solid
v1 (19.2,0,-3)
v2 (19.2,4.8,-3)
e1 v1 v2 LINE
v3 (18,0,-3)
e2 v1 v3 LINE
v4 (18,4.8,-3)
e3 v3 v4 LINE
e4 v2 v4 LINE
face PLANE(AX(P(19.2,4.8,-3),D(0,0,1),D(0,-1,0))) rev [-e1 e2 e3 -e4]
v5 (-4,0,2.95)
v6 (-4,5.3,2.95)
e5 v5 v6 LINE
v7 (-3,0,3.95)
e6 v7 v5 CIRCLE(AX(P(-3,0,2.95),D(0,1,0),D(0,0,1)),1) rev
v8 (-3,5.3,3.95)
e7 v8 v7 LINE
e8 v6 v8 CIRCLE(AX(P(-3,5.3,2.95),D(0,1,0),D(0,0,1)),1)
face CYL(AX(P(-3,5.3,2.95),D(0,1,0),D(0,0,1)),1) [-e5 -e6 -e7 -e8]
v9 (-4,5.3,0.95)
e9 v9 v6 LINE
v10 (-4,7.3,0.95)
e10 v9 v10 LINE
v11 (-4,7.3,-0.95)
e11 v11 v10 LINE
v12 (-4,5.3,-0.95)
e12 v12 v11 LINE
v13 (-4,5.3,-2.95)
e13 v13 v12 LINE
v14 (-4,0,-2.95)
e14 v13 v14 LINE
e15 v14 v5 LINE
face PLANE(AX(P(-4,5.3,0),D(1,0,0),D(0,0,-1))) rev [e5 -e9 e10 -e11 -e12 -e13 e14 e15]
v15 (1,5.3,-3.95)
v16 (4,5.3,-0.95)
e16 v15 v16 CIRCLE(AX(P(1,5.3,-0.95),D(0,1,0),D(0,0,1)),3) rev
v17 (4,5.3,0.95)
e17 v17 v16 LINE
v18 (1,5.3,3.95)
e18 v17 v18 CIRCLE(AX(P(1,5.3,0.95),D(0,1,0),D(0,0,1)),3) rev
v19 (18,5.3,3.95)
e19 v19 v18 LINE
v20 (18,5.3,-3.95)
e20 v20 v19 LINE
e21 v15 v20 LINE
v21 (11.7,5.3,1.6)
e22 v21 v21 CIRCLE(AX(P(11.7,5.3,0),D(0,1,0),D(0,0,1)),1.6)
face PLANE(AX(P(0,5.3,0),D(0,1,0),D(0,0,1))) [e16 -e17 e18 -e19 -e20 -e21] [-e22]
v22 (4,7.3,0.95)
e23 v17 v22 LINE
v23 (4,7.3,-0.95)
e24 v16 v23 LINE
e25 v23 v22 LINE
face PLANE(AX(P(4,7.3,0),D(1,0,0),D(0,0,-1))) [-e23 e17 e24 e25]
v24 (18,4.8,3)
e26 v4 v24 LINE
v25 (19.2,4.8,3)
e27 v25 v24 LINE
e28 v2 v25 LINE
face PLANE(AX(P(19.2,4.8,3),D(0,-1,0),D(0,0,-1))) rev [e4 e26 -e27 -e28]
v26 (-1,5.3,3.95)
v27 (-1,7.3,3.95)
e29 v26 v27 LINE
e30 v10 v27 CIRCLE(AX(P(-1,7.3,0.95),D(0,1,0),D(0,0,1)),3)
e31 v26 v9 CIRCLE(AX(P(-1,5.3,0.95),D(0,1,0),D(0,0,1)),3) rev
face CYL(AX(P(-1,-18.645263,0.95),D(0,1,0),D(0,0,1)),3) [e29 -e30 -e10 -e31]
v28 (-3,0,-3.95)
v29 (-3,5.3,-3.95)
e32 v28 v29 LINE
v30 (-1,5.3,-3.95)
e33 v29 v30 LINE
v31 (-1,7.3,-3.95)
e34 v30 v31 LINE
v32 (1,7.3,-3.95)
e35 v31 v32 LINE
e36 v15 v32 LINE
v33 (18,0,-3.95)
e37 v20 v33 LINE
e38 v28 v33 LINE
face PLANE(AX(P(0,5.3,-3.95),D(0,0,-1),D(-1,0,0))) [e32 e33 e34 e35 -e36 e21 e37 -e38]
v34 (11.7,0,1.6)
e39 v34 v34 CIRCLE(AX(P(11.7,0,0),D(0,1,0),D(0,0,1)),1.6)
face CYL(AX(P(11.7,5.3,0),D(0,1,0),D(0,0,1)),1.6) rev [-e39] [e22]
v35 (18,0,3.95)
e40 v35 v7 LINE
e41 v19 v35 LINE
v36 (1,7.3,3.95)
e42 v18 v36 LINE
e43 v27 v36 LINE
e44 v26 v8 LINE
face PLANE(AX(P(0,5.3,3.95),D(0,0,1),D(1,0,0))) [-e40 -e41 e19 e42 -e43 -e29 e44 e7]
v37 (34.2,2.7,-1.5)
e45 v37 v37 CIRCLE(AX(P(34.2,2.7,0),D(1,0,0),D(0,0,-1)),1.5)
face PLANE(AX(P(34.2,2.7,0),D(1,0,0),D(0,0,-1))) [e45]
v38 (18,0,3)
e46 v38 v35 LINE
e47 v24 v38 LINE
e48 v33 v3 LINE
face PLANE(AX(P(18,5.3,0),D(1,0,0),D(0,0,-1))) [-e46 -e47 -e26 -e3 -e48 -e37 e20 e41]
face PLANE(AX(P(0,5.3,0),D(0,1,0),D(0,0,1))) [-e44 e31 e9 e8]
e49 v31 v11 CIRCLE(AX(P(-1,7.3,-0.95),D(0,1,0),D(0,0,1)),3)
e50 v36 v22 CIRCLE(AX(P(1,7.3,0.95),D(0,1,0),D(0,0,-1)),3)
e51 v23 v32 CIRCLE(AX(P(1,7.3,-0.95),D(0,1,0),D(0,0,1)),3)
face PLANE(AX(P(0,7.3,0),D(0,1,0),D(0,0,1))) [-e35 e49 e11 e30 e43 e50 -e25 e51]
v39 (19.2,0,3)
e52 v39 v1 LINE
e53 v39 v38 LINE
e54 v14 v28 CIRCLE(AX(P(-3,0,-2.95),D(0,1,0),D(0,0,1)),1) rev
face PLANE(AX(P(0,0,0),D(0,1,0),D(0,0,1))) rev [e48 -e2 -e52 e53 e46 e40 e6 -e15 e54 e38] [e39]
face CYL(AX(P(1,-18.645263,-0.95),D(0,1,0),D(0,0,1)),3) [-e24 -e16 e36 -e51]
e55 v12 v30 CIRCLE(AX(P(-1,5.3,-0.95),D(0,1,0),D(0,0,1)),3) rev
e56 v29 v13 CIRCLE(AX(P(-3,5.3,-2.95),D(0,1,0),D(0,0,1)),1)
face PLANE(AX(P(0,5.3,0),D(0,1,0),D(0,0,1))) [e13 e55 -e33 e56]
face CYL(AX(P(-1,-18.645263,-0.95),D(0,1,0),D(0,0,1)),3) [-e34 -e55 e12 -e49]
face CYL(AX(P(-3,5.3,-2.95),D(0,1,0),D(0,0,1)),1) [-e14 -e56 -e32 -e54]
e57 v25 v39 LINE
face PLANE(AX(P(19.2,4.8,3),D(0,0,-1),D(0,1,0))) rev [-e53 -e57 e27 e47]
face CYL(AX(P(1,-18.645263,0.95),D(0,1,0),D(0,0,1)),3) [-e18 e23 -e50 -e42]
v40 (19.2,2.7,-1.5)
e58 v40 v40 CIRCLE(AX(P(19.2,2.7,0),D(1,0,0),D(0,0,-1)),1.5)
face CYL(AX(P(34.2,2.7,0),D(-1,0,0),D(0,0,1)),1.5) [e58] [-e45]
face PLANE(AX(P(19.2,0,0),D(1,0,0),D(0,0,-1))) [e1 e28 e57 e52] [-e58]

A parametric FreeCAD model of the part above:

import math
import FreeCAD as App
import Part
import Sketcher

V = App.Vector
Q = App.Units.Quantity


def edges_at(feature, points):
    """Names of the edges that pass closest to the given points."""
    edges = feature.Shape.Edges
    near = lambda p: min(range(len(edges)), key=lambda i: edges[i].distToShape(Part.Vertex(*p))[0])
    return sorted({f"Edge{near(p) + 1}" for p in points})

doc = App.newDocument("Part")
body = doc.addObject("PartDesign::Body", "Body")

# Sketch on XZ plane
sketch1 = doc.addObject("Sketcher::SketchObject", "Sketch")
body.addObject(sketch1)
sketch1.AttachmentSupport = (doc.XZ_Plane, [""])
sketch1.MapMode = "FlatFace"
sketch1.addGeometry([
    Part.LineSegment(V(18, 4, 0), V(18, -4, 0)),
    Part.LineSegment(V(18, -4, 0), V(-4, -4, 0)),
    Part.LineSegment(V(-4, -4, 0), V(-4, 4, 0)),
    Part.LineSegment(V(-4, 4, 0), V(18, 4, 0)),
], False)
sketch1.addConstraint([
    Sketcher.Constraint("Coincident", 0, 2, 1, 1),
    Sketcher.Constraint("Coincident", 1, 2, 2, 1),
    Sketcher.Constraint("Coincident", 2, 2, 3, 1),
    Sketcher.Constraint("Coincident", 3, 2, 0, 1),
    Sketcher.Constraint("Vertical", 0),
    Sketcher.Constraint("Horizontal", 1),
    Sketcher.Constraint("Vertical", 2),
    Sketcher.Constraint("Horizontal", 3),
    Sketcher.Constraint("DistanceX", 1, 2, 1, 1, Q("22 mm")),
    Sketcher.Constraint("DistanceY", 0, 2, 0, 1, Q("7.9 mm")),
    Sketcher.Constraint("DistanceX", -1, 1, 0, 2, Q("18 mm")),
    Sketcher.Constraint("DistanceY", 0, 2, -1, 1, Q("3.95 mm")),
])
pad1 = doc.addObject("PartDesign::Pad", "Pad")
body.addObject(pad1)
pad1.Profile = sketch1
pad1.Length = 5.3
pad1.Reversed = True

# Sketch on XZ plane
sketch2 = doc.addObject("Sketcher::SketchObject", "Sketch001")
body.addObject(sketch2)
sketch2.AttachmentSupport = (doc.XZ_Plane, [""])
sketch2.MapMode = "FlatFace"
sketch2.addGeometry([
    Part.LineSegment(V(-4, -4, 0), V(-4, 4, 0)),
    Part.LineSegment(V(-4, 4, 0), V(4, 4, 0)),
    Part.LineSegment(V(4, 4, 0), V(4, -4, 0)),
    Part.LineSegment(V(4, -4, 0), V(-4, -4, 0)),
], False)
sketch2.addConstraint([
    Sketcher.Constraint("Coincident", 0, 2, 1, 1),
    Sketcher.Constraint("Coincident", 1, 2, 2, 1),
    Sketcher.Constraint("Coincident", 2, 2, 3, 1),
    Sketcher.Constraint("Coincident", 3, 2, 0, 1),
    Sketcher.Constraint("Vertical", 0),
    Sketcher.Constraint("Horizontal", 1),
    Sketcher.Constraint("Vertical", 2),
    Sketcher.Constraint("Horizontal", 3),
    Sketcher.Constraint("Symmetric", 0, 2, 2, 2, -1, 1),
    Sketcher.Constraint("DistanceX", 1, 1, 1, 2, Q("8 mm")),
    Sketcher.Constraint("DistanceY", 0, 1, 0, 2, Q("7.9 mm")),
])
pad2 = doc.addObject("PartDesign::Pad", "Pad001")
body.addObject(pad2)
pad2.Profile = sketch2
pad2.Length = 7.3
pad2.Reversed = True

# Sketch on XZ plane
sketch3 = doc.addObject("Sketcher::SketchObject", "Sketch002")
body.addObject(sketch3)
sketch3.AttachmentSupport = (doc.XZ_Plane, [""])
sketch3.MapMode = "FlatFace"
sketch3.AttachmentOffset = App.Placement(V(0, 0, -7.3), App.Rotation())
sketch3.addGeometry([
    Part.LineSegment(V(-7.4, -7.4, 0), V(-7.4, 7.4, 0)),  # 0
    Part.LineSegment(V(-7.4, 7.4, 0), V(21.4, 7.4, 0)),  # 1
    Part.LineSegment(V(21.4, 7.4, 0), V(21.4, -7.4, 0)),  # 2
    Part.LineSegment(V(21.4, -7.4, 0), V(-7.4, -7.4, 0)),  # 3
    Part.LineSegment(V(4, -0.9, 0), V(4, 0.9, 0)),  # 4
    Part.ArcOfCircle(Part.Circle(V(1, 1, 0), V(0, 0, 1), 3), math.radians(0), math.radians(90)),  # 5
    Part.LineSegment(V(1, 4, 0), V(-1, 4, 0)),  # 6
    Part.ArcOfCircle(Part.Circle(V(-1, 1, 0), V(0, 0, 1), 3), math.radians(90), math.radians(180)),  # 7
    Part.LineSegment(V(-4, 0.9, 0), V(-4, -0.9, 0)),  # 8
    Part.ArcOfCircle(Part.Circle(V(-1, -1, 0), V(0, 0, 1), 3), math.radians(180), math.radians(270)),  # 9
    Part.LineSegment(V(-1, -4, 0), V(1, -4, 0)),  # 10
    Part.ArcOfCircle(Part.Circle(V(1, -1, 0), V(0, 0, 1), 3), math.radians(-90), math.radians(0)),  # 11
], False)
sketch3.addConstraint([
    Sketcher.Constraint("Coincident", 0, 2, 1, 1),
    Sketcher.Constraint("Coincident", 1, 2, 2, 1),
    Sketcher.Constraint("Coincident", 2, 2, 3, 1),
    Sketcher.Constraint("Coincident", 3, 2, 0, 1),
    Sketcher.Constraint("Tangent", 4, 2, 5, 1),
    Sketcher.Constraint("Tangent", 5, 2, 6, 1),
    Sketcher.Constraint("Tangent", 6, 2, 7, 1),
    Sketcher.Constraint("Tangent", 7, 2, 8, 1),
    Sketcher.Constraint("Tangent", 8, 2, 9, 1),
    Sketcher.Constraint("Tangent", 9, 2, 10, 1),
    Sketcher.Constraint("Tangent", 10, 2, 11, 1),
    Sketcher.Constraint("Tangent", 11, 2, 4, 1),
    Sketcher.Constraint("Vertical", 0),
    Sketcher.Constraint("Horizontal", 1),
    Sketcher.Constraint("Vertical", 2),
    Sketcher.Constraint("Horizontal", 3),
    Sketcher.Constraint("Vertical", 4),
    Sketcher.Constraint("Horizontal", 6),
    Sketcher.Constraint("Vertical", 8),
    Sketcher.Constraint("Horizontal", 10),
    Sketcher.Constraint("Equal", 5, 7),
    Sketcher.Constraint("Equal", 7, 9),
    Sketcher.Constraint("Equal", 9, 11),
    Sketcher.Constraint("Symmetric", 5, 3, 9, 3, -1, 1),
    Sketcher.Constraint("Radius", 5, Q("3 mm")),
    Sketcher.Constraint("DistanceX", 6, 2, 6, 1, Q("2 mm")),
    Sketcher.Constraint("DistanceY", 4, 1, 4, 2, Q("1.9 mm")),
    Sketcher.Constraint("DistanceX", 1, 1, 1, 2, Q("28.898 mm")),
    Sketcher.Constraint("DistanceY", 0, 1, 0, 2, Q("14.798 mm")),
    Sketcher.Constraint("DistanceX", 0, 2, -1, 1, Q("7.449 mm")),
    Sketcher.Constraint("DistanceY", -1, 1, 0, 2, Q("7.399 mm")),
])
pocket1 = doc.addObject("PartDesign::Pocket", "Pocket")
body.addObject(pocket1)
pocket1.Profile = sketch3
pocket1.Length = 2
pocket1.Reversed = True

# Sketch on XZ plane
sketch4 = doc.addObject("Sketcher::SketchObject", "Sketch003")
body.addObject(sketch4)
sketch4.AttachmentSupport = (doc.XZ_Plane, [""])
sketch4.MapMode = "FlatFace"
sketch4.AttachmentOffset = App.Placement(V(0, 0, -5.3), App.Rotation())
sketch4.addGeometry(Part.Circle(V(11.7, 0, 0), V(0, 0, 1), 1.6), False)
sketch4.addConstraint([
    Sketcher.Constraint("PointOnObject", 0, 3, -1),
    Sketcher.Constraint("Diameter", 0, Q("3.2 mm")),
    Sketcher.Constraint("DistanceX", -1, 1, 0, 3, Q("11.7 mm")),
])
doc.recompute()
hole = doc.addObject("PartDesign::Hole", "Hole")
body.addObject(hole)
hole.Profile = sketch4
hole.ThreadType = "None"
hole.Diameter = 3.2
hole.DepthType = "ThroughAll"
hole.Reversed = True
doc.recompute()

fillet = doc.addObject("PartDesign::Fillet", "Fillet")
body.addObject(fillet)
fillet.Base = (hole, edges_at(hole, [(-4, 2.65, 3.95), (-4, 2.65, -3.95)]))
fillet.Radius = 1

# Sketch on YZ plane
sketch5 = doc.addObject("Sketcher::SketchObject", "Sketch004")
body.addObject(sketch5)
sketch5.AttachmentSupport = (doc.YZ_Plane, [""])
sketch5.MapMode = "FlatFace"
sketch5.AttachmentOffset = App.Placement(V(0, 0, 18), App.Rotation())
sketch5.addGeometry([
    Part.LineSegment(V(4.8, 3, 0), V(0, 3, 0)),
    Part.LineSegment(V(0, 3, 0), V(0, -3, 0)),
    Part.LineSegment(V(0, -3, 0), V(4.8, -3, 0)),
    Part.LineSegment(V(4.8, -3, 0), V(4.8, 3, 0)),
], False)
sketch5.addConstraint([
    Sketcher.Constraint("Coincident", 0, 2, 1, 1),
    Sketcher.Constraint("Coincident", 1, 2, 2, 1),
    Sketcher.Constraint("Coincident", 2, 2, 3, 1),
    Sketcher.Constraint("Coincident", 3, 2, 0, 1),
    Sketcher.Constraint("Horizontal", 0),
    Sketcher.Constraint("Vertical", 1),
    Sketcher.Constraint("Horizontal", 2),
    Sketcher.Constraint("Vertical", 3),
    Sketcher.Constraint("Symmetric", 0, 2, 1, 2, -1, 1),
    Sketcher.Constraint("DistanceY", 1, 2, 1, 1, Q("6 mm")),
    Sketcher.Constraint("DistanceX", 0, 2, 0, 1, Q("4.8 mm")),
])
pad3 = doc.addObject("PartDesign::Pad", "Pad002")
body.addObject(pad3)
pad3.Profile = sketch5
pad3.Length = 1.2

# Sketch on YZ plane
sketch6 = doc.addObject("Sketcher::SketchObject", "Sketch005")
body.addObject(sketch6)
sketch6.AttachmentSupport = (doc.YZ_Plane, [""])
sketch6.MapMode = "FlatFace"
sketch6.AttachmentOffset = App.Placement(V(0, 0, 19.2), App.Rotation())
sketch6.addGeometry(Part.Circle(V(2.7, 0, 0), V(0, 0, 1), 1.5), False)
sketch6.addConstraint([
    Sketcher.Constraint("PointOnObject", 0, 3, -1),
    Sketcher.Constraint("Diameter", 0, Q("3 mm")),
    Sketcher.Constraint("DistanceX", -1, 1, 0, 3, Q("2.7 mm")),
])
pad4 = doc.addObject("PartDesign::Pad", "Pad003")
body.addObject(pad4)
pad4.Profile = sketch6
pad4.Length = 15

doc.recompute()
